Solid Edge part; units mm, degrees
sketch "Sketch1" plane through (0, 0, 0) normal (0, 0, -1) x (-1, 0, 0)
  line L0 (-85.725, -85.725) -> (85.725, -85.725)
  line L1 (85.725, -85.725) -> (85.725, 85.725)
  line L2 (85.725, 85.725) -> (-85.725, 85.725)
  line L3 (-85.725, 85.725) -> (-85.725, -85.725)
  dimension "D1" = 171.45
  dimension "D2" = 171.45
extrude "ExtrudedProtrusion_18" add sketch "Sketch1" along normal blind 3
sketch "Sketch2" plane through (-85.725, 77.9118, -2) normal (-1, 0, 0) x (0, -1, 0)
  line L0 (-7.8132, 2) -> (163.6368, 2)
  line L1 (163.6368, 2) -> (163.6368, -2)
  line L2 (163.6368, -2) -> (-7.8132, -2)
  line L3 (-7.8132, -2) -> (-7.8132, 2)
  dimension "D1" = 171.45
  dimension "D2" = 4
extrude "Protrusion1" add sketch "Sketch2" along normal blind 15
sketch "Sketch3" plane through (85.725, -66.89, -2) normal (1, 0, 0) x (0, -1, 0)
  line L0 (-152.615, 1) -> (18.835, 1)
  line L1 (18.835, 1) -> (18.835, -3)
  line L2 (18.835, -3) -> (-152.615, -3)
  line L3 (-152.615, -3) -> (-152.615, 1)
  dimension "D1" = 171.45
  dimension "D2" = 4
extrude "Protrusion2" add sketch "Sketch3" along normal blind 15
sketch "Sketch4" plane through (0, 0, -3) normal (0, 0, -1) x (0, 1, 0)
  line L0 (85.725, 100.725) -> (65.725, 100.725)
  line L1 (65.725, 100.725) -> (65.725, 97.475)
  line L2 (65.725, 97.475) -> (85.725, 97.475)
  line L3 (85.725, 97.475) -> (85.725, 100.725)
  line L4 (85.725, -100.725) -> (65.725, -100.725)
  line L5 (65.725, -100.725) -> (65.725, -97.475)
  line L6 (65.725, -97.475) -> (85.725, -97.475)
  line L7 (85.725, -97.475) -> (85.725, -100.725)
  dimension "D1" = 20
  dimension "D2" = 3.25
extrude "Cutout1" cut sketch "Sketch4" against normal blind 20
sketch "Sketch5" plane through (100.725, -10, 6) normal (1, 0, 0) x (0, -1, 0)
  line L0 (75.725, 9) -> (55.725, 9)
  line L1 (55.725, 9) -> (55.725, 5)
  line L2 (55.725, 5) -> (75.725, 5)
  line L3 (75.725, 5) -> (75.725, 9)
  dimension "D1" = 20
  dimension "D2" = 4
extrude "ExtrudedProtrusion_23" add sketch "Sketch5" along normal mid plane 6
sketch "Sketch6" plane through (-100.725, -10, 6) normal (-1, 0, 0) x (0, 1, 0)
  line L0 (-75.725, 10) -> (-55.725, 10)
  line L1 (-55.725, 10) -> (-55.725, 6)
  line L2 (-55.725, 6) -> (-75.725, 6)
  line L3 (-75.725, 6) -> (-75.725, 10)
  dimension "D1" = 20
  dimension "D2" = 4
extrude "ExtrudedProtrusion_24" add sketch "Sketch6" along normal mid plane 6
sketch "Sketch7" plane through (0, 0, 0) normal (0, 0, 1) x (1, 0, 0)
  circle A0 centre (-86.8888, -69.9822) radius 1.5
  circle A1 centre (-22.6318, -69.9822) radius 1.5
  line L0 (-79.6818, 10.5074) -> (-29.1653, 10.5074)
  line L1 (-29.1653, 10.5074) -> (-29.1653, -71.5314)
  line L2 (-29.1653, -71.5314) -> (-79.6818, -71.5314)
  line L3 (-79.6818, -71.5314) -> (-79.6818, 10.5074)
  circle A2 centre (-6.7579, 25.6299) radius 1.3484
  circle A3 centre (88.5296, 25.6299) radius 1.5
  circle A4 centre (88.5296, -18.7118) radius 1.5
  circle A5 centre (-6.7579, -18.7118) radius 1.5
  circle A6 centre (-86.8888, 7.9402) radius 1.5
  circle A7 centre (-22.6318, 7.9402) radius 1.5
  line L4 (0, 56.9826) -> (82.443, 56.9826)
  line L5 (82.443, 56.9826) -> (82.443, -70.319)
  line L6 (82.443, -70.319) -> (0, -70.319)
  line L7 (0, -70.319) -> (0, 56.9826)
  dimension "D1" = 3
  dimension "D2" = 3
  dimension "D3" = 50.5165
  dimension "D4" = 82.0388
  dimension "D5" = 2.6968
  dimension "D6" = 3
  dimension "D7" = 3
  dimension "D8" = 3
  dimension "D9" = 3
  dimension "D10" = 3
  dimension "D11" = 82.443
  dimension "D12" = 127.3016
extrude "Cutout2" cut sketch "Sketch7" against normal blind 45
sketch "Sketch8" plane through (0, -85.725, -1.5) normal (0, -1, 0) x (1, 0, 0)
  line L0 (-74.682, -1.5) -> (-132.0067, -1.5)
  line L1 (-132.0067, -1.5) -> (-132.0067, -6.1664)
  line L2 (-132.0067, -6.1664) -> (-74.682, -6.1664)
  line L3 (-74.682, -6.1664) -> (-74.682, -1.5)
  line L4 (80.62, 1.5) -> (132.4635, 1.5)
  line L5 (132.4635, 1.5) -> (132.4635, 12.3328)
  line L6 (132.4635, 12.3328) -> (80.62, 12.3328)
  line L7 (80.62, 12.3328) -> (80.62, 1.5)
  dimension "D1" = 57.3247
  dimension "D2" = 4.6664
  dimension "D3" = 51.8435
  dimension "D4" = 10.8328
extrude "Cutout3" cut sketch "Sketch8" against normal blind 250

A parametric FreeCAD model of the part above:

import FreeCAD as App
import Part
import Sketcher

V = App.Vector

doc = App.newDocument("Part")
body = doc.addObject("PartDesign::Body", "Body")

sketch1 = doc.addObject("Sketcher::SketchObject", "Sketch")
body.addObject(sketch1)
sketch1.AttachmentSupport = (doc.XY_Plane, [""])
sketch1.MapMode = "FlatFace"
sketch1.addGeometry([
    Part.LineSegment(V(86, 86, 0), V(86, -86, 0)),
    Part.LineSegment(V(86, -86, 0), V(-86, -86, 0)),
    Part.LineSegment(V(-86, -86, 0), V(-86, 86, 0)),
    Part.LineSegment(V(-86, 86, 0), V(86, 86, 0)),
], False)
sketch1.addConstraint([
    Sketcher.Constraint("Coincident", 0, 2, 1, 1),
    Sketcher.Constraint("Coincident", 1, 2, 2, 1),
    Sketcher.Constraint("Coincident", 2, 2, 3, 1),
    Sketcher.Constraint("Coincident", 3, 2, 0, 1),
    Sketcher.Constraint("Vertical", 0),
    Sketcher.Constraint("Horizontal", 1),
    Sketcher.Constraint("Vertical", 2),
    Sketcher.Constraint("Horizontal", 3),
    Sketcher.Constraint("Symmetric", 0, 2, 2, 2, -1, 1),
    Sketcher.Constraint("Equal", 3, 0),
    Sketcher.Constraint("DistanceX", 1, 2, 1, 1, 171.45),
])
pad1 = doc.addObject("PartDesign::Pad", "Pad")
body.addObject(pad1)
pad1.Profile = sketch1
pad1.Length = 3
pad1.Reversed = True

sketch2 = doc.addObject("Sketcher::SketchObject", "Sketch001")
body.addObject(sketch2)
sketch2.AttachmentSupport = (doc.YZ_Plane, [""])
sketch2.MapMode = "FlatFace"
sketch2.AttachmentOffset = App.Placement(V(0, 0, -85.725), App.Rotation())
sketch2.addGeometry([
    Part.LineSegment(V(-85.7, 0, 0), V(85.7, 0, 0)),
    Part.LineSegment(V(85.7, 0, 0), V(85.7, -4, 0)),
    Part.LineSegment(V(85.7, -4, 0), V(-85.7, -4, 0)),
    Part.LineSegment(V(-85.7, -4, 0), V(-85.7, 0, 0)),
], False)
sketch2.addConstraint([
    Sketcher.Constraint("Coincident", 0, 2, 1, 1),
    Sketcher.Constraint("Coincident", 1, 2, 2, 1),
    Sketcher.Constraint("Coincident", 2, 2, 3, 1),
    Sketcher.Constraint("Coincident", 3, 2, 0, 1),
    Sketcher.Constraint("Horizontal", 0),
    Sketcher.Constraint("Vertical", 1),
    Sketcher.Constraint("Horizontal", 2),
    Sketcher.Constraint("Vertical", 3),
    Sketcher.Constraint("Symmetric", 0, 2, 3, 2, -1, 1),
    Sketcher.Constraint("DistanceY", 1, 2, 1, 1, 4.0),
    Sketcher.Constraint("DistanceX", 0, 1, 0, 2, 171.45),
])
pad2 = doc.addObject("PartDesign::Pad", "Pad001")
body.addObject(pad2)
pad2.Profile = sketch2
pad2.Length = 15
pad2.Reversed = True

sketch3 = doc.addObject("Sketcher::SketchObject", "Sketch002")
body.addObject(sketch3)
sketch3.AttachmentSupport = (doc.YZ_Plane, [""])
sketch3.MapMode = "FlatFace"
sketch3.AttachmentOffset = App.Placement(V(0, 0, 85.725), App.Rotation())
sketch3.addGeometry([
    Part.LineSegment(V(-85.7, -3, 0), V(85.7, -3, 0)),
    Part.LineSegment(V(85.7, -3, 0), V(85.7, 1, 0)),
    Part.LineSegment(V(85.7, 1, 0), V(-85.7, 1, 0)),
    Part.LineSegment(V(-85.7, 1, 0), V(-85.7, -3, 0)),
], False)
sketch3.addConstraint([
    Sketcher.Constraint("Coincident", 0, 2, 1, 1),
    Sketcher.Constraint("Coincident", 1, 2, 2, 1),
    Sketcher.Constraint("Coincident", 2, 2, 3, 1),
    Sketcher.Constraint("Coincident", 3, 2, 0, 1),
    Sketcher.Constraint("Horizontal", 0),
    Sketcher.Constraint("Vertical", 1),
    Sketcher.Constraint("Horizontal", 2),
    Sketcher.Constraint("Vertical", 3),
    Sketcher.Constraint("DistanceY", 1, 1, 1, 2, 4.0),
    Sketcher.Constraint("DistanceY", 0, 2, -1, 1, 3.0),
    Sketcher.Constraint("DistanceX", 0, 1, 0, 2, 171.45),
    Sketcher.Constraint("DistanceX", -1, 1, 0, 2, 85.725),
])
pad3 = doc.addObject("PartDesign::Pad", "Pad002")
body.addObject(pad3)
pad3.Profile = sketch3
pad3.Length = 15

sketch4 = doc.addObject("Sketcher::SketchObject", "Sketch003")
body.addObject(sketch4)
sketch4.AttachmentSupport = (doc.XY_Plane, [""])
sketch4.MapMode = "FlatFace"
sketch4.AttachmentOffset = App.Placement(V(0, 0, -3), App.Rotation())
sketch4.addGeometry([
    Part.LineSegment(V(97.5, 85.7, 0), V(100.7, 85.7, 0)),
    Part.LineSegment(V(100.7, 85.7, 0), V(100.7, 65.7, 0)),
    Part.LineSegment(V(100.7, 65.7, 0), V(97.5, 65.7, 0)),
    Part.LineSegment(V(97.5, 65.7, 0), V(97.5, 85.7, 0)),
    Part.LineSegment(V(-100.7, 65.7, 0), V(-100.7, 85.7, 0)),
    Part.LineSegment(V(-100.7, 85.7, 0), V(-97.5, 85.7, 0)),
    Part.LineSegment(V(-97.5, 85.7, 0), V(-97.5, 65.7, 0)),
    Part.LineSegment(V(-97.5, 65.7, 0), V(-100.7, 65.7, 0)),
], False)
sketch4.addConstraint([
    Sketcher.Constraint("Coincident", 0, 2, 1, 1),
    Sketcher.Constraint("Coincident", 1, 2, 2, 1),
    Sketcher.Constraint("Coincident", 2, 2, 3, 1),
    Sketcher.Constraint("Coincident", 3, 2, 0, 1),
    Sketcher.Constraint("Coincident", 4, 2, 5, 1),
    Sketcher.Constraint("Coincident", 5, 2, 6, 1),
    Sketcher.Constraint("Coincident", 6, 2, 7, 1),
    Sketcher.Constraint("Coincident", 7, 2, 4, 1),
    Sketcher.Constraint("Horizontal", 0),
    Sketcher.Constraint("Vertical", 1),
    Sketcher.Constraint("Horizontal", 2),
    Sketcher.Constraint("Vertical", 3),
    Sketcher.Constraint("Vertical", 4),
    Sketcher.Constraint("Horizontal", 5),
    Sketcher.Constraint("Vertical", 6),
    Sketcher.Constraint("Horizontal", 7),
    Sketcher.Constraint("Symmetric", 0, 2, 4, 2, -2),
    Sketcher.Constraint("Symmetric", 2, 2, 6, 2, -2),
    Sketcher.Constraint("DistanceY", 1, 2, 1, 1, 20.0),
    Sketcher.Constraint("DistanceX", 0, 1, 0, 2, 3.25),
    Sketcher.Constraint("DistanceX", 4, 2, 3, 2, 198.2),
    Sketcher.Constraint("DistanceY", -1, 1, 0, 2, 85.725),
])
pocket1 = doc.addObject("PartDesign::Pocket", "Pocket")
body.addObject(pocket1)
pocket1.Profile = sketch4
pocket1.Length = 20
pocket1.Reversed = True

sketch5 = doc.addObject("Sketcher::SketchObject", "Sketch004")
body.addObject(sketch5)
sketch5.AttachmentSupport = (doc.YZ_Plane, [""])
sketch5.MapMode = "FlatFace"
sketch5.AttachmentOffset = App.Placement(V(0, 0, 100.725), App.Rotation())
sketch5.addGeometry([
    Part.LineSegment(V(-85.7, 1, 0), V(-85.7, -3, 0)),
    Part.LineSegment(V(-85.7, -3, 0), V(-65.7, -3, 0)),
    Part.LineSegment(V(-65.7, -3, 0), V(-65.7, 1, 0)),
    Part.LineSegment(V(-65.7, 1, 0), V(-85.7, 1, 0)),
], False)
sketch5.addConstraint([
    Sketcher.Constraint("Coincident", 0, 2, 1, 1),
    Sketcher.Constraint("Coincident", 1, 2, 2, 1),
    Sketcher.Constraint("Coincident", 2, 2, 3, 1),
    Sketcher.Constraint("Coincident", 3, 2, 0, 1),
    Sketcher.Constraint("Vertical", 0),
    Sketcher.Constraint("Horizontal", 1),
    Sketcher.Constraint("Vertical", 2),
    Sketcher.Constraint("Horizontal", 3),
    Sketcher.Constraint("DistanceX", 1, 1, 1, 2, 20.0),
    Sketcher.Constraint("DistanceY", 0, 2, 0, 1, 4.0),
    Sketcher.Constraint("DistanceY", 0, 2, -1, 1, 3.0),
    Sketcher.Constraint("DistanceX", 0, 2, -1, 1, 85.725),
])
pad4 = doc.addObject("PartDesign::Pad", "Pad003")
body.addObject(pad4)
pad4.Profile = sketch5
pad4.Length = 6
pad4.Midplane = True

sketch6 = doc.addObject("Sketcher::SketchObject", "Sketch005")
body.addObject(sketch6)
sketch6.AttachmentSupport = (doc.YZ_Plane, [""])
sketch6.MapMode = "FlatFace"
sketch6.AttachmentOffset = App.Placement(V(0, 0, -100.725), App.Rotation())
sketch6.addGeometry([
    Part.LineSegment(V(-65.7, -4, 0), V(-85.7, -4, 0)),
    Part.LineSegment(V(-85.7, -4, 0), V(-85.7, 0, 0)),
    Part.LineSegment(V(-85.7, 0, 0), V(-65.7, 0, 0)),
    Part.LineSegment(V(-65.7, 0, 0), V(-65.7, -4, 0)),
], False)
sketch6.addConstraint([
    Sketcher.Constraint("Coincident", 0, 2, 1, 1),
    Sketcher.Constraint("Coincident", 1, 2, 2, 1),
    Sketcher.Constraint("Coincident", 2, 2, 3, 1),
    Sketcher.Constraint("Coincident", 3, 2, 0, 1),
    Sketcher.Constraint("Horizontal", 0),
    Sketcher.Constraint("Vertical", 1),
    Sketcher.Constraint("Horizontal", 2),
    Sketcher.Constraint("Vertical", 3),
    Sketcher.Constraint("PointOnObject", 1, 2, -1),
    Sketcher.Constraint("DistanceX", 0, 2, 0, 1, 20.0),
    Sketcher.Constraint("DistanceY", 1, 1, 1, 2, 4.0),
    Sketcher.Constraint("DistanceX", 0, 2, -1, 1, 85.725),
])
pad5 = doc.addObject("PartDesign::Pad", "Pad004")
body.addObject(pad5)
pad5.Profile = sketch6
pad5.Length = 6
pad5.Midplane = True

sketch7 = doc.addObject("Sketcher::SketchObject", "Sketch006")
body.addObject(sketch7)
sketch7.AttachmentSupport = (doc.XY_Plane, [""])
sketch7.MapMode = "FlatFace"
sketch7.addGeometry([
    Part.Circle(V(-86.9, -70, 0), V(0, 0, 1), 1.5),
    Part.Circle(V(-22.6, -70, 0), V(0, 0, 1), 1.5),
    Part.LineSegment(V(-29.2, 10.5, 0), V(-79.7, 10.5, 0)),
    Part.LineSegment(V(-79.7, 10.5, 0), V(-79.7, -71.5, 0)),
    Part.LineSegment(V(-79.7, -71.5, 0), V(-29.2, -71.5, 0)),
    Part.LineSegment(V(-29.2, -71.5, 0), V(-29.2, 10.5, 0)),
    Part.Circle(V(-6.8, 25.6, 0), V(0, 0, 1), 1.3),
    Part.Circle(V(88.5, 25.6, 0), V(0, 0, 1), 1.5),
    Part.Circle(V(88.5, -18.7, 0), V(0, 0, 1), 1.5),
    Part.Circle(V(-6.8, -18.7, 0), V(0, 0, 1), 1.5),
    Part.Circle(V(-86.9, 7.9, 0), V(0, 0, 1), 1.5),
    Part.Circle(V(-22.6, 7.9, 0), V(0, 0, 1), 1.5),
    Part.LineSegment(V(82.4, 57, 0), V(0, 57, 0)),
    Part.LineSegment(V(0, 57, 0), V(0, -70.3, 0)),
    Part.LineSegment(V(0, -70.3, 0), V(82.4, -70.3, 0)),
    Part.LineSegment(V(82.4, -70.3, 0), V(82.4, 57, 0)),
], False)
sketch7.addConstraint([
    Sketcher.Constraint("Coincident", 2, 2, 3, 1),
    Sketcher.Constraint("Coincident", 3, 2, 4, 1),
    Sketcher.Constraint("Coincident", 4, 2, 5, 1),
    Sketcher.Constraint("Coincident", 5, 2, 2, 1),
    Sketcher.Constraint("Coincident", 12, 2, 13, 1),
    Sketcher.Constraint("Coincident", 13, 2, 14, 1),
    Sketcher.Constraint("Coincident", 14, 2, 15, 1),
    Sketcher.Constraint("Coincident", 15, 2, 12, 1),
    Sketcher.Constraint("Horizontal", 2),
    Sketcher.Constraint("Vertical", 3),
    Sketcher.Constraint("Horizontal", 4),
    Sketcher.Constraint("Vertical", 5),
    Sketcher.Constraint("Horizontal", 12),
    Sketcher.Constraint("Vertical", 13),
    Sketcher.Constraint("Horizontal", 14),
    Sketcher.Constraint("Vertical", 15),
    Sketcher.Constraint("Equal", 0, 1),
    Sketcher.Constraint("Equal", 1, 7),
    Sketcher.Constraint("Equal", 7, 8),
    Sketcher.Constraint("Equal", 8, 9),
    Sketcher.Constraint("Equal", 9, 10),
    Sketcher.Constraint("Equal", 10, 11),
    Sketcher.Constraint("PointOnObject", 12, 2, -2),
    Sketcher.Constraint("Horizontal", 0, 3, 1, 3),
    Sketcher.Constraint("Horizontal", 6, 3, 7, 3),
    Sketcher.Constraint("Horizontal", 8, 3, 9, 3),
    Sketcher.Constraint("Horizontal", 10, 3, 11, 3),
    Sketcher.Constraint("Vertical", 7, 3, 8, 3),
    Sketcher.Constraint("Vertical", 6, 3, 9, 3),
    Sketcher.Constraint("Vertical", 0, 3, 10, 3),
    Sketcher.Constraint("Vertical", 1, 3, 11, 3),
    Sketcher.Constraint("Diameter", 0, 3.0),
    Sketcher.Constraint("Diameter", 6, 2.6968),
    Sketcher.Constraint("DistanceX", 12, 2, 12, 1, 82.443),
    Sketcher.Constraint("DistanceY", -1, 1, 6, 3, 25.63),
    Sketcher.Constraint("DistanceX", 2, 2, 11, 3, 57.05),
    Sketcher.Constraint("DistanceX", 2, 2, 2, 1, 50.5165),
    Sketcher.Constraint("DistanceY", 3, 2, 3, 1, 82.0388),
    Sketcher.Constraint("DistanceY", 13, 2, 13, 1, 127.3016),
    Sketcher.Constraint("DistanceX", 6, 3, -1, 1, 6.758),
    Sketcher.Constraint("DistanceY", 13, 2, -1, 1, 70.319),
    Sketcher.Constraint("DistanceX", 0, 3, 1, 3, 64.257),
    Sketcher.Constraint("DistanceX", 1, 3, 6, 3, 15.874),
    Sketcher.Constraint("DistanceY", 1, 3, 6, 3, 95.612),
    Sketcher.Constraint("DistanceY", 9, 3, 10, 3, 26.652),
    Sketcher.Constraint("DistanceX", -1, 1, 7, 3, 88.5296),
    Sketcher.Constraint("DistanceY", 8, 3, -1, 1, 18.7118),
    Sketcher.Constraint("DistanceY", -1, 1, 2, 2, 10.5074),
])
pocket2 = doc.addObject("PartDesign::Pocket", "Pocket001")
body.addObject(pocket2)
pocket2.Profile = sketch7
pocket2.Length = 45

sketch8 = doc.addObject("Sketcher::SketchObject", "Sketch007")
body.addObject(sketch8)
sketch8.AttachmentSupport = (doc.XZ_Plane, [""])
sketch8.MapMode = "FlatFace"
sketch8.AttachmentOffset = App.Placement(V(0, 0, 85.725), App.Rotation())
sketch8.addGeometry([
    Part.LineSegment(V(-74.7, -7.7, 0), V(-74.7, -3, 0)),
    Part.LineSegment(V(-74.7, -3, 0), V(-132, -3, 0)),
    Part.LineSegment(V(-132, -3, 0), V(-132, -7.7, 0)),
    Part.LineSegment(V(-132, -7.7, 0), V(-74.7, -7.7, 0)),
    Part.LineSegment(V(80.6, 10.8, 0), V(80.6, 0, 0)),
    Part.LineSegment(V(80.6, 0, 0), V(132.5, 0, 0)),
    Part.LineSegment(V(132.5, 0, 0), V(132.5, 10.8, 0)),
    Part.LineSegment(V(132.5, 10.8, 0), V(80.6, 10.8, 0)),
], False)
sketch8.addConstraint([
    Sketcher.Constraint("Coincident", 0, 2, 1, 1),
    Sketcher.Constraint("Coincident", 1, 2, 2, 1),
    Sketcher.Constraint("Coincident", 2, 2, 3, 1),
    Sketcher.Constraint("Coincident", 3, 2, 0, 1),
    Sketcher.Constraint("Coincident", 4, 2, 5, 1),
    Sketcher.Constraint("Coincident", 5, 2, 6, 1),
    Sketcher.Constraint("Coincident", 6, 2, 7, 1),
    Sketcher.Constraint("Coincident", 7, 2, 4, 1),
    Sketcher.Constraint("Vertical", 0),
    Sketcher.Constraint("Horizontal", 1),
    Sketcher.Constraint("Vertical", 2),
    Sketcher.Constraint("Horizontal", 3),
    Sketcher.Constraint("Vertical", 4),
    Sketcher.Constraint("Horizontal", 5),
    Sketcher.Constraint("Vertical", 6),
    Sketcher.Constraint("Horizontal", 7),
    Sketcher.Constraint("PointOnObject", 4, 2, -1),
    Sketcher.Constraint("DistanceY", 0, 2, -1, 1, 3.0),
    Sketcher.Constraint("DistanceX", -1, 1, 4, 2, 80.62),
    Sketcher.Constraint("DistanceX", 1, 2, 1, 1, 57.3247),
    Sketcher.Constraint("DistanceX", 5, 1, 5, 2, 51.8435),
    Sketcher.Constraint("DistanceY", 0, 1, 0, 2, 4.6664),
    Sketcher.Constraint("DistanceY", 4, 2, 4, 1, 10.8328),
    Sketcher.Constraint("DistanceX", 0, 2, -1, 1, 74.682),
])
pocket3 = doc.addObject("PartDesign::Pocket", "Pocket002")
body.addObject(pocket3)
pocket3.Profile = sketch8
pocket3.Length = 250

doc.recompute()
